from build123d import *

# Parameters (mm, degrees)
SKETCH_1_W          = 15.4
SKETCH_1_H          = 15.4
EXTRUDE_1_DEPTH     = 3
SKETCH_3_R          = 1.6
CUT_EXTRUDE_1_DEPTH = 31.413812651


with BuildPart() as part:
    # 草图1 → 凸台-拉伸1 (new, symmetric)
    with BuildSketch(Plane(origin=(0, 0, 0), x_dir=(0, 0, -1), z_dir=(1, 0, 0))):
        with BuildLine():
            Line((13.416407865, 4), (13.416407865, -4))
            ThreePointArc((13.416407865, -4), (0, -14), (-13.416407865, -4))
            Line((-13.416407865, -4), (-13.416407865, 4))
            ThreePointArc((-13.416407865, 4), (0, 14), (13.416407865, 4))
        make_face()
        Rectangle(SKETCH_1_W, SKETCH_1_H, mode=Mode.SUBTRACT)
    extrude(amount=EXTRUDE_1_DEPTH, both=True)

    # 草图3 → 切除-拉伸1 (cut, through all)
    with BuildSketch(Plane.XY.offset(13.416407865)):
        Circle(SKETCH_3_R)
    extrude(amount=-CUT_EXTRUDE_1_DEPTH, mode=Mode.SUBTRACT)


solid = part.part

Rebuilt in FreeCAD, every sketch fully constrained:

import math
import FreeCAD as App
import Part
import Sketcher


def add_polygon(sketch, points):
    """Adds a closed chain of lines whose ends are joined by coincident constraints."""
    first, n = sketch.GeometryCount, len(points)
    for a, b in zip(points, points[1:] + points[:1]):
        sketch.addGeometry(Part.LineSegment(App.Vector(*a, 0), App.Vector(*b, 0)), False)
    for i in range(n):
        sketch.addConstraint(Sketcher.Constraint("Coincident", first + i, 2, first + (i + 1) % n, 1))

doc = App.newDocument("Part")
body = doc.addObject("PartDesign::Body", "Body")

# Sketch on YZ plane
sketch1 = doc.addObject("Sketcher::SketchObject", "Sketch")
body.addObject(sketch1)
sketch1.AttachmentSupport = (doc.YZ_Plane, [""])
sketch1.MapMode = "FlatFace"
sketch1.addGeometry(Part.LineSegment(App.Vector(-4, -13, 0), App.Vector(4, -13, 0)), False)  # 0
sketch1.addGeometry(Part.ArcOfCircle(Part.Circle(App.Vector(0, 0, 0), App.Vector(0, 0, 1), 14), math.radians(-73), math.radians(73)), False)  # 1
sketch1.addGeometry(Part.LineSegment(App.Vector(4, 13, 0), App.Vector(-4, 13, 0)), False)  # 2
sketch1.addGeometry(Part.ArcOfCircle(Part.Circle(App.Vector(0, 0, 0), App.Vector(0, 0, 1), 14), math.radians(107), math.radians(253)), False)  # 3
add_polygon(sketch1, [(-8, 8), (8, 8), (8, -8), (-8, -8)])  # lines 4-7
sketch1.addConstraint(Sketcher.Constraint("Coincident", 0, 2, 1, 1))
sketch1.addConstraint(Sketcher.Constraint("Coincident", 1, 2, 2, 1))
sketch1.addConstraint(Sketcher.Constraint("Coincident", 2, 2, 3, 1))
sketch1.addConstraint(Sketcher.Constraint("Coincident", 3, 2, 0, 1))
sketch1.addConstraint(Sketcher.Constraint("Horizontal", 0))
sketch1.addConstraint(Sketcher.Constraint("Horizontal", 2))
sketch1.addConstraint(Sketcher.Constraint("Horizontal", 4))
sketch1.addConstraint(Sketcher.Constraint("Vertical", 5))
sketch1.addConstraint(Sketcher.Constraint("Horizontal", 6))
sketch1.addConstraint(Sketcher.Constraint("Vertical", 7))
sketch1.addConstraint(Sketcher.Constraint("Coincident", 1, 3, -1, 1))
sketch1.addConstraint(Sketcher.Constraint("Coincident", 3, 3, -1, 1))
sketch1.addConstraint(Sketcher.Constraint("Equal", 1, 3))
sketch1.addConstraint(Sketcher.Constraint("Symmetric", 4, 2, 6, 2, -1, 1))
sketch1.addConstraint(Sketcher.Constraint("Vertical", 0, 2, 1, 2))
sketch1.addConstraint(Sketcher.Constraint("Equal", 6, 5))
sketch1.addConstraint(Sketcher.Constraint("Radius", 1, 14.0))
sketch1.addConstraint(Sketcher.Constraint("DistanceX", 0, 1, 0, 2, 8.0))
sketch1.addConstraint(Sketcher.Constraint("DistanceX", 4, 1, 4, 2, 15.4))
pad1 = doc.addObject("PartDesign::Pad", "Pad")
body.addObject(pad1)
pad1.Profile = sketch1
pad1.Length = 6
pad1.Midplane = True

# Sketch on XY plane
sketch2 = doc.addObject("Sketcher::SketchObject", "Sketch001")
body.addObject(sketch2)
sketch2.AttachmentSupport = (doc.XY_Plane, [""])
sketch2.MapMode = "FlatFace"
sketch2.AttachmentOffset = App.Placement(App.Vector(0, 0, 13.416408), App.Rotation())
sketch2.addGeometry(Part.Circle(App.Vector(0, 0, 0), App.Vector(0, 0, 1), 1.6), False)
sketch2.addConstraint(Sketcher.Constraint("Coincident", 0, 3, -1, 1))
sketch2.addConstraint(Sketcher.Constraint("Diameter", 0, 3.2))
pocket1 = doc.addObject("PartDesign::Pocket", "Pocket")
body.addObject(pocket1)
pocket1.Profile = sketch2
pocket1.Type = "ThroughAll"

doc.recompute()
